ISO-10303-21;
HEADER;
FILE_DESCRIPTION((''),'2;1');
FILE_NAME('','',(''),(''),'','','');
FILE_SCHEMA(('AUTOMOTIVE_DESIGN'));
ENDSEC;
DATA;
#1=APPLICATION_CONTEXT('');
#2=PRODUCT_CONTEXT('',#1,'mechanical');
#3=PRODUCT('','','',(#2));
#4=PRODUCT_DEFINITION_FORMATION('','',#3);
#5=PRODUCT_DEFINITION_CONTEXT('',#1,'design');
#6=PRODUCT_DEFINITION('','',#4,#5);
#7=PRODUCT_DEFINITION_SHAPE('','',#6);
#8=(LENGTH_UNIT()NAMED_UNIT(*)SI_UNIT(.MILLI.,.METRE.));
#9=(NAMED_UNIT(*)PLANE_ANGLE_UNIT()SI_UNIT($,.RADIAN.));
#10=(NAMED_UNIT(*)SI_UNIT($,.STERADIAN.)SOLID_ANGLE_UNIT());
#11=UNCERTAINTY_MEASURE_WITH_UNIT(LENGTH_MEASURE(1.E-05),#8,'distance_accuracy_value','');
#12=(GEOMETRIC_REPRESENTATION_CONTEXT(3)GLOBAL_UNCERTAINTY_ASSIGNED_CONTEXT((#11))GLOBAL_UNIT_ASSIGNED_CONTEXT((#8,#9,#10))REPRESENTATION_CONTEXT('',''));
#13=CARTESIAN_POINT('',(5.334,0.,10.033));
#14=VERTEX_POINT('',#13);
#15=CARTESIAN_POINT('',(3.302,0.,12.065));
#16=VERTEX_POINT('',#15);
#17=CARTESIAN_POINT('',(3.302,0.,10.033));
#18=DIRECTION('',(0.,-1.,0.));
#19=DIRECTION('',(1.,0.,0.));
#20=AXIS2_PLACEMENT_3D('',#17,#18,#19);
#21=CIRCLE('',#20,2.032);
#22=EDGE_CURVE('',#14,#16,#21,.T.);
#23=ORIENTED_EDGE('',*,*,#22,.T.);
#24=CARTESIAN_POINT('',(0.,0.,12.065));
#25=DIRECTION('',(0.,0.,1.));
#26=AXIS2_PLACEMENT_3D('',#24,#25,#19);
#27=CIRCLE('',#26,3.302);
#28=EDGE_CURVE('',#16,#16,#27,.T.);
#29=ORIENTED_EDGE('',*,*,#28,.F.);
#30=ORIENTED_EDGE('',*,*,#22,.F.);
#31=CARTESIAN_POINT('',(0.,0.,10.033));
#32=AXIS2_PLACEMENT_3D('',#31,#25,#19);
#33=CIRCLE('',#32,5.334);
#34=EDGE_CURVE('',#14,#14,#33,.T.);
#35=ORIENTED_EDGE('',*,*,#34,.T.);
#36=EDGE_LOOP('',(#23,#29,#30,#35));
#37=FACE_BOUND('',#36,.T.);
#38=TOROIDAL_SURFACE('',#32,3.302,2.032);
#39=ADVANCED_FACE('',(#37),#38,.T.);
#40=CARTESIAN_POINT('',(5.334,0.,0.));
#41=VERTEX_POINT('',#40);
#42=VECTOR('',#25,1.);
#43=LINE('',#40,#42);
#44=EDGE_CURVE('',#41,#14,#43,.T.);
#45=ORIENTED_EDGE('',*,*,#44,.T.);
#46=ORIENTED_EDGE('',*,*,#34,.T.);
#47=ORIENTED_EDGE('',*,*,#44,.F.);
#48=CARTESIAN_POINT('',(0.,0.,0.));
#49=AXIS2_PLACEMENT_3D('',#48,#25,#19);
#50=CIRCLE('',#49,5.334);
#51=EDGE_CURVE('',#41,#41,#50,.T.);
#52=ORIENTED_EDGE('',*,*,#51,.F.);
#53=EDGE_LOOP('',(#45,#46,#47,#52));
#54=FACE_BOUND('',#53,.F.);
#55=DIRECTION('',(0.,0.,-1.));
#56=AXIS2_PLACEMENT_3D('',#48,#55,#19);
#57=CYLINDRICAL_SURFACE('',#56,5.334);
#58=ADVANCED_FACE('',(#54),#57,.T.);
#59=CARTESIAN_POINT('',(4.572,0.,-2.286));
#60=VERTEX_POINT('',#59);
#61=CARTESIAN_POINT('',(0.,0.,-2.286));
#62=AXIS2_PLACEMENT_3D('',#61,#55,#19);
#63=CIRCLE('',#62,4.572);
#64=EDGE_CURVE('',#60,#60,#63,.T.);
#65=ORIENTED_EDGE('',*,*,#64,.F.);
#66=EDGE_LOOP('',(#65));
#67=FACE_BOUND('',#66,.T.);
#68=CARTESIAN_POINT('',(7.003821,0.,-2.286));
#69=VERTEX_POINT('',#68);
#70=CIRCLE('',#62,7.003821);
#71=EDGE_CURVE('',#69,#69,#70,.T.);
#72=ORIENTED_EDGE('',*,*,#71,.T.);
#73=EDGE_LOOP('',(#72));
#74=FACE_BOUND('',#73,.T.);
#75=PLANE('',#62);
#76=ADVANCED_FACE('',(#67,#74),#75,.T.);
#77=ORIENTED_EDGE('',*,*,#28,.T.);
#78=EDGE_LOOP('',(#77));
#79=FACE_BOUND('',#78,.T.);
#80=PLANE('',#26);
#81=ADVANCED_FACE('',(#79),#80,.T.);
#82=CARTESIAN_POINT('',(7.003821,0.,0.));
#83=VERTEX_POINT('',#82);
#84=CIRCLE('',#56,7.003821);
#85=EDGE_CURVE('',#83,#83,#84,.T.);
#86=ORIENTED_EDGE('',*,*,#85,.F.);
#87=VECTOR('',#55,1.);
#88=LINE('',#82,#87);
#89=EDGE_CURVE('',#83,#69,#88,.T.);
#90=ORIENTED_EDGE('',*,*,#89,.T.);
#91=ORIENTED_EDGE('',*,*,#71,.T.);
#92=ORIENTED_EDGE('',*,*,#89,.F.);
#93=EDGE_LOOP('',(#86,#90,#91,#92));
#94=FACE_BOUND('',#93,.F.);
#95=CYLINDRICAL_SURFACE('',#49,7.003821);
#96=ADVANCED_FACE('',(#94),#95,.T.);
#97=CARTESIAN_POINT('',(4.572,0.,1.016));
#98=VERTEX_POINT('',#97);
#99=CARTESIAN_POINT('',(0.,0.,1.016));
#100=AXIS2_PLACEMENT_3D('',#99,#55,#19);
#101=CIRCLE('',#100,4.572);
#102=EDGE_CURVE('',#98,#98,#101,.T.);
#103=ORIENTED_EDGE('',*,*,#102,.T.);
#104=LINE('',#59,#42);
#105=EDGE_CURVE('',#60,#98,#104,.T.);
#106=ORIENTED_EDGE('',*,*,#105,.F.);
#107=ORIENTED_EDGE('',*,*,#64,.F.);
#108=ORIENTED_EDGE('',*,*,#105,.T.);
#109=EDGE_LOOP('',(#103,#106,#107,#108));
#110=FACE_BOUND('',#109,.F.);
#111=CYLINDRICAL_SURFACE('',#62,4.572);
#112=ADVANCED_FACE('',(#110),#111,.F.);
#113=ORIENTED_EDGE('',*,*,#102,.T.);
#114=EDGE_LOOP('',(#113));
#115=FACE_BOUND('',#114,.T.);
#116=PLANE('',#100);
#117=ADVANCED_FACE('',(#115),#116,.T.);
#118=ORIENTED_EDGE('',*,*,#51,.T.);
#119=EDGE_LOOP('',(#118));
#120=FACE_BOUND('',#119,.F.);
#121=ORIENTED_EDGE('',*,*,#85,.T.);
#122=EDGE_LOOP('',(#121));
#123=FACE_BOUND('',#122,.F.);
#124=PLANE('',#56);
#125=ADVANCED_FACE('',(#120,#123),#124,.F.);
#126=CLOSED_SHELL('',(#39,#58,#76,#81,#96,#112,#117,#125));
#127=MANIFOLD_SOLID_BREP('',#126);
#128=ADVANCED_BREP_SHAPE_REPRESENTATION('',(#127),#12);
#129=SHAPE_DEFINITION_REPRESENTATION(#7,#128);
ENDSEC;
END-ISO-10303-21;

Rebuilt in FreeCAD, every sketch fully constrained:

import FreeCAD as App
import Part
import Sketcher
from FreeCAD import Vector
Q = App.Units.Quantity


def edges_at(feature, points):
    """Names of the edges that pass closest to the given points."""
    edges = feature.Shape.Edges
    near = lambda p: min(range(len(edges)), key=lambda i: edges[i].distToShape(Part.Vertex(*p))[0])
    return sorted({f"Edge{near(p) + 1}" for p in points})

doc = App.newDocument("Part")
body = doc.addObject("PartDesign::Body", "Body")

sketch1 = body.newObject("Sketcher::SketchObject", "Sketch")
sketch1.AttachmentSupport = (doc.getObject("XY_Plane"), [""])
sketch1.MapMode = "FlatFace"
sketch1.addGeometry(Part.Circle(Vector(0, 0, 0), Vector(0, 0, 1), 5), False)
sketch1.addConstraint(Sketcher.Constraint("Coincident", 0, 3, -1, 1))
sketch1.addConstraint(Sketcher.Constraint("Diameter", 0, Q("0.42 in")))
pad1 = body.newObject("PartDesign::Pad", "Pad")
pad1.Profile = sketch1
pad1.Length = Q("0.475 in")

sketch2 = body.newObject("Sketcher::SketchObject", "Sketch001")
sketch2.AttachmentSupport = (doc.getObject("XY_Plane"), [""])
sketch2.MapMode = "FlatFace"
sketch2.addGeometry(Part.Circle(Vector(0, 0, 0), Vector(0, 0, 1), 7), False)
sketch2.addConstraint(Sketcher.Constraint("Coincident", 0, 3, -1, 1))
sketch2.addConstraint(Sketcher.Constraint("Diameter", 0, 14.007642))
pad2 = body.newObject("PartDesign::Pad", "Pad001")
pad2.Profile = sketch2
pad2.Length = Q("0.09 in")
pad2.Reversed = True

sketch3 = body.newObject("Sketcher::SketchObject", "Sketch002")
sketch3.AttachmentSupport = (doc.getObject("XY_Plane"), [""])
sketch3.MapMode = "FlatFace"
sketch3.AttachmentOffset = App.Placement(Vector(0, 0, -0.09 * 25.4), App.Rotation())
sketch3.addGeometry(Part.Circle(Vector(0, 0, 0), Vector(0, 0, 1), 4.6), False)
sketch3.addConstraint(Sketcher.Constraint("Coincident", 0, 3, -1, 1))
sketch3.addConstraint(Sketcher.Constraint("Diameter", 0, Q("0.36 in")))
pocket1 = body.newObject("PartDesign::Pocket", "Pocket")
pocket1.Profile = sketch3
pocket1.Length = Q("0.13 in")
pocket1.Reversed = True
doc.recompute()

fillet = body.newObject("PartDesign::Fillet", "Fillet")
fillet.Base = (pocket1, edges_at(pocket1, [(-5.334, 0, 12.065)]))
fillet.Radius = Q("0.08 in")

doc.recompute()
